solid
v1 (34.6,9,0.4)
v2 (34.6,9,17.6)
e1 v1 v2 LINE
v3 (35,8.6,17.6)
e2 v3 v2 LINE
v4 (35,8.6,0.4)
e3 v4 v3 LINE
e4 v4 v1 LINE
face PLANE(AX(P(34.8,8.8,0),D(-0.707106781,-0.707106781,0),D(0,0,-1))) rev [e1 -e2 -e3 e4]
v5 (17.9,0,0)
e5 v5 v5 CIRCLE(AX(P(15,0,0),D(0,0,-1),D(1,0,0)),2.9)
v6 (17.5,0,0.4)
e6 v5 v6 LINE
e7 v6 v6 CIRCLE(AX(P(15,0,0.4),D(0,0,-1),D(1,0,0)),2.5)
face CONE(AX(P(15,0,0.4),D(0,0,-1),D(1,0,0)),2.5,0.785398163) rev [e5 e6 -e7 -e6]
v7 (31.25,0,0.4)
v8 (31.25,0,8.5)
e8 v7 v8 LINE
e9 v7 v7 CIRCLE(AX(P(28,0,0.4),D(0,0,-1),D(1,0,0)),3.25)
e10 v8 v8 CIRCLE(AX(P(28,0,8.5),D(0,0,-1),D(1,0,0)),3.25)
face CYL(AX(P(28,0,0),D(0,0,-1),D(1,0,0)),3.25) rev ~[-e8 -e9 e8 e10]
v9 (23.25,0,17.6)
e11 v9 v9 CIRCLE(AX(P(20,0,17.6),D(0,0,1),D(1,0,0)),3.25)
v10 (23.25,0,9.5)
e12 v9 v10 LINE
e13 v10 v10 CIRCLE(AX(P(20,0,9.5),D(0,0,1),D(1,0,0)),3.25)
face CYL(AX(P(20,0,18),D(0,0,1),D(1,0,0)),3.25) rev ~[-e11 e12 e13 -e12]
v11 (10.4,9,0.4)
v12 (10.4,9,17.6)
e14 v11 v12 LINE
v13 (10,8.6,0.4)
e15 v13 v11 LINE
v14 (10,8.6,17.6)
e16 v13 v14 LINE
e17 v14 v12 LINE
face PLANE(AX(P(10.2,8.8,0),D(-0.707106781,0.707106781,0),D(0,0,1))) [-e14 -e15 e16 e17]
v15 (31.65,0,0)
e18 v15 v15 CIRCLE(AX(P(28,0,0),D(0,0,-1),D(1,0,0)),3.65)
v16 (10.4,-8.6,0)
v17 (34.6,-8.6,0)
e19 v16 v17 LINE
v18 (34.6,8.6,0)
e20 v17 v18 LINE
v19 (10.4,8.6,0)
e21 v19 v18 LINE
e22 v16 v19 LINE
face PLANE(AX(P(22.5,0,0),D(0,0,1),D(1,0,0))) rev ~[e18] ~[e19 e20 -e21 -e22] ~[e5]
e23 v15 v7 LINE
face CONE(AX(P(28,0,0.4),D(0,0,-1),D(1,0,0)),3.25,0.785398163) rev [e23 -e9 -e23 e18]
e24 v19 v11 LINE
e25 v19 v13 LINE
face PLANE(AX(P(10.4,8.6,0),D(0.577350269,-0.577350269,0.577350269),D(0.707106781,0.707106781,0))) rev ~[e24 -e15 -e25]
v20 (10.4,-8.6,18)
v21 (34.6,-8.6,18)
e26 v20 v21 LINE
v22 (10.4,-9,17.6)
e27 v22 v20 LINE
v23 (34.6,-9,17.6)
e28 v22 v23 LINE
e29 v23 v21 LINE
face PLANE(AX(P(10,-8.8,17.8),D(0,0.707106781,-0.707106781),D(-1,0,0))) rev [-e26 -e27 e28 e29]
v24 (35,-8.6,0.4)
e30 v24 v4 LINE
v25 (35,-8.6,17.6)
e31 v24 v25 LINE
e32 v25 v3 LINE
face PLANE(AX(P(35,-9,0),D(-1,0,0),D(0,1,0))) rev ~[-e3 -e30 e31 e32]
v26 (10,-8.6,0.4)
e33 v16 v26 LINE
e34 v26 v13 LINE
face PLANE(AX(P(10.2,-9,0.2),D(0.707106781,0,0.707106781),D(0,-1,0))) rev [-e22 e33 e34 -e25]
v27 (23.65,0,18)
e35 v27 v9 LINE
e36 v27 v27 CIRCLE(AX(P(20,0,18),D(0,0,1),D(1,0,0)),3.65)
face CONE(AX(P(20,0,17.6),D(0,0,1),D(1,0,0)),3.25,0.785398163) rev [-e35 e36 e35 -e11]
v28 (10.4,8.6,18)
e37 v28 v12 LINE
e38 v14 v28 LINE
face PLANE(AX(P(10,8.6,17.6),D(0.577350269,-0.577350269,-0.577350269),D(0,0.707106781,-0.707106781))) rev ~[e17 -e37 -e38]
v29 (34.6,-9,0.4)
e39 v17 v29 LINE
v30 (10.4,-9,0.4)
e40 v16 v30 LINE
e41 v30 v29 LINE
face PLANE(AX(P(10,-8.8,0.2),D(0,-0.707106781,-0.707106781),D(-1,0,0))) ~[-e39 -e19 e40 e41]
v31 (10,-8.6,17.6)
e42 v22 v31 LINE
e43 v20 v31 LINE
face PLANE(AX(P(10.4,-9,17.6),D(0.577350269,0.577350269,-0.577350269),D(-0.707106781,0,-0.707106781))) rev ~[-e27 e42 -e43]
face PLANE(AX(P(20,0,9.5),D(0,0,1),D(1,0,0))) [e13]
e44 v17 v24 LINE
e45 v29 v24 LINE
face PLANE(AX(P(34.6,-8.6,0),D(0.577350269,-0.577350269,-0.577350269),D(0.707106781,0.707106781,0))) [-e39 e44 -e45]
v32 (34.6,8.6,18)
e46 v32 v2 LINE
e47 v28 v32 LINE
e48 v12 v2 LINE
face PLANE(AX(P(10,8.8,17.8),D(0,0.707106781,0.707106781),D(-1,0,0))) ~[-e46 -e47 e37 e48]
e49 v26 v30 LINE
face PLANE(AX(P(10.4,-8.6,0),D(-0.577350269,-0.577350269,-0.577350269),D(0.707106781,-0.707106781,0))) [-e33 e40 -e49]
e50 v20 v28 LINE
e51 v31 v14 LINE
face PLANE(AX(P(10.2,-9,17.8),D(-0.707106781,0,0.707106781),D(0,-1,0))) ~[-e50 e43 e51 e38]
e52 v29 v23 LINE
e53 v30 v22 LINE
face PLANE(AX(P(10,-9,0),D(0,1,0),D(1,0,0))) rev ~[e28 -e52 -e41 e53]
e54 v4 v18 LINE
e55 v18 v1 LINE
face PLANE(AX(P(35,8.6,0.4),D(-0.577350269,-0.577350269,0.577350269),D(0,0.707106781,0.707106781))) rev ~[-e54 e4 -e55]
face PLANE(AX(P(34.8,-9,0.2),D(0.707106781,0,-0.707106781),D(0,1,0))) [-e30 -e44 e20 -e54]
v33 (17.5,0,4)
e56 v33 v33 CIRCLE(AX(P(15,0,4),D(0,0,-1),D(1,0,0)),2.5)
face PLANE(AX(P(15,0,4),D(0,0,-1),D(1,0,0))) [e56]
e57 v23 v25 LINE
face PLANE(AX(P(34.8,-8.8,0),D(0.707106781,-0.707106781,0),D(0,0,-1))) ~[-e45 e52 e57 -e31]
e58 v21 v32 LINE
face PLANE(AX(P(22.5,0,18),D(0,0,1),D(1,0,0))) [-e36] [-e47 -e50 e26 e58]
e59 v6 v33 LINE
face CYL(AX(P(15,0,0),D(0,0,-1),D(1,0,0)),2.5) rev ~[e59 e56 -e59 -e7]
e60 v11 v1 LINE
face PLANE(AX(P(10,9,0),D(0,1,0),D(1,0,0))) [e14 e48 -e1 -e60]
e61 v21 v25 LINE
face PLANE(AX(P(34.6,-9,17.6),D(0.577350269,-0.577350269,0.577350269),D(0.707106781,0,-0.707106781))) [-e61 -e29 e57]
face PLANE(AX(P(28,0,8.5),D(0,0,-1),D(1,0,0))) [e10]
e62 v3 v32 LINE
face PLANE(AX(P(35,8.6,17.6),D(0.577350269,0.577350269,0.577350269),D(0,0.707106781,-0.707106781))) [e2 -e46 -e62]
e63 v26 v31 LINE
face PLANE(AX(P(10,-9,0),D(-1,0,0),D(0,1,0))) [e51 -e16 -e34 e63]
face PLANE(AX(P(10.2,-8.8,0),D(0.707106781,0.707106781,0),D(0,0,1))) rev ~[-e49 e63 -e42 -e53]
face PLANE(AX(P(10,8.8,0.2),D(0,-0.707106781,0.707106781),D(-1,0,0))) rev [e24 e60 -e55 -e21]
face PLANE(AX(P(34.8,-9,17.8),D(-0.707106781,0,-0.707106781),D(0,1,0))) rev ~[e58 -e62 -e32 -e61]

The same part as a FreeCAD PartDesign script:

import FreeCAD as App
import Part
import Sketcher
Q = App.Units.Quantity


def edges_at(feature, points):
    """Names of the edges that pass closest to the given points."""
    edges = feature.Shape.Edges
    near = lambda p: min(range(len(edges)), key=lambda i: edges[i].distToShape(Part.Vertex(*p))[0])
    return sorted({f"Edge{near(p) + 1}" for p in points})


def add_polygon(sketch, points):
    """Adds a closed chain of lines whose ends are joined by coincident constraints."""
    first, n = sketch.GeometryCount, len(points)
    for a, b in zip(points, points[1:] + points[:1]):
        sketch.addGeometry(Part.LineSegment(App.Vector(*a, 0), App.Vector(*b, 0)), False)
    for i in range(n):
        sketch.addConstraint(Sketcher.Constraint("Coincident", first + i, 2, first + (i + 1) % n, 1))

doc = App.newDocument("Part")
body = doc.addObject("PartDesign::Body", "Body")

# Sketch on XY plane
sketch1 = body.newObject("Sketcher::SketchObject", "Sketch")
sketch1.AttachmentSupport = (doc.getObject("XY_Plane"), [""])
sketch1.MapMode = "FlatFace"
add_polygon(sketch1, [(10, 9), (10, -9), (35, -9), (35, 9)])  # lines 0-3
sketch1.addConstraint([
    Sketcher.Constraint("Vertical", 0),
    Sketcher.Constraint("Horizontal", 1),
    Sketcher.Constraint("Vertical", 2),
    Sketcher.Constraint("Horizontal", 3),
    Sketcher.Constraint("DistanceX", 1, 1, 1, 2, Q("25 mm")),
    Sketcher.Constraint("DistanceY", 0, 2, 0, 1, Q("18 mm")),
    Sketcher.Constraint("DistanceX", -1, 1, 0, 2, Q("10 mm")),
    Sketcher.Constraint("DistanceY", 0, 2, -1, 1, Q("9 mm")),
])
pad1 = body.newObject("PartDesign::Pad", "Pad")
pad1.Profile = sketch1
pad1.Length = 18

# Sketch on XY plane
sketch2 = body.newObject("Sketcher::SketchObject", "Sketch001")
sketch2.AttachmentSupport = (doc.getObject("XY_Plane"), [""])
sketch2.MapMode = "FlatFace"
sketch2.addGeometry(Part.Circle(App.Vector(15, 0, 0), App.Vector(0, 0, 1), 2.5), False)
sketch2.addConstraint([
    Sketcher.Constraint("PointOnObject", 0, 3, -1),
    Sketcher.Constraint("Diameter", 0, Q("5 mm")),
    Sketcher.Constraint("DistanceX", -1, 1, 0, 3, Q("15 mm")),
])
pocket1 = body.newObject("PartDesign::Pocket", "Pocket")
pocket1.Profile = sketch2
pocket1.Length = 4
pocket1.Reversed = True

# Sketch on XY plane
sketch3 = body.newObject("Sketcher::SketchObject", "Sketch002")
sketch3.AttachmentSupport = (doc.getObject("XY_Plane"), [""])
sketch3.MapMode = "FlatFace"
sketch3.addGeometry(Part.Circle(App.Vector(28, 0, 0), App.Vector(0, 0, 1), 3.25), False)
sketch3.addConstraint([
    Sketcher.Constraint("PointOnObject", 0, 3, -1),
    Sketcher.Constraint("Diameter", 0, Q("6.5 mm")),
    Sketcher.Constraint("DistanceX", -1, 1, 0, 3, Q("28 mm")),
])
pocket2 = body.newObject("PartDesign::Pocket", "Pocket001")
pocket2.Profile = sketch3
pocket2.Length = 8.5
pocket2.Reversed = True

# Sketch on XY plane
sketch4 = body.newObject("Sketcher::SketchObject", "Sketch003")
sketch4.AttachmentSupport = (doc.getObject("XY_Plane"), [""])
sketch4.MapMode = "FlatFace"
sketch4.AttachmentOffset = App.Placement(App.Vector(0, 0, 18), App.Rotation())
sketch4.addGeometry(Part.Circle(App.Vector(20, 0, 0), App.Vector(0, 0, 1), 3.25), False)
sketch4.addConstraint([
    Sketcher.Constraint("PointOnObject", 0, 3, -1),
    Sketcher.Constraint("Diameter", 0, Q("6.5 mm")),
    Sketcher.Constraint("DistanceX", -1, 1, 0, 3, Q("20 mm")),
])
pocket3 = body.newObject("PartDesign::Pocket", "Pocket002")
pocket3.Profile = sketch4
pocket3.Length = 8.5
doc.recompute()

chamfer = body.newObject("PartDesign::Chamfer", "Chamfer")
chamfer.Base = (pocket3, edges_at(pocket3, [
    (22.5, 9, 18),
    (10, 0, 18),
    (35, 0, 18),
    (22.5, -9, 18),
    (16.75, 0, 18),
    (10, -9, 9),
    (10, 9, 9),
    (10, 0, 0),
    (35, -9, 9),
    (22.5, -9, 0),
    (22.5, 9, 0),
    (35, 0, 0),
    (24.75, 0, 0),
    (12.5, 0, 0),
    (35, 9, 9),
]))
chamfer.Size = 0.4

doc.recompute()
